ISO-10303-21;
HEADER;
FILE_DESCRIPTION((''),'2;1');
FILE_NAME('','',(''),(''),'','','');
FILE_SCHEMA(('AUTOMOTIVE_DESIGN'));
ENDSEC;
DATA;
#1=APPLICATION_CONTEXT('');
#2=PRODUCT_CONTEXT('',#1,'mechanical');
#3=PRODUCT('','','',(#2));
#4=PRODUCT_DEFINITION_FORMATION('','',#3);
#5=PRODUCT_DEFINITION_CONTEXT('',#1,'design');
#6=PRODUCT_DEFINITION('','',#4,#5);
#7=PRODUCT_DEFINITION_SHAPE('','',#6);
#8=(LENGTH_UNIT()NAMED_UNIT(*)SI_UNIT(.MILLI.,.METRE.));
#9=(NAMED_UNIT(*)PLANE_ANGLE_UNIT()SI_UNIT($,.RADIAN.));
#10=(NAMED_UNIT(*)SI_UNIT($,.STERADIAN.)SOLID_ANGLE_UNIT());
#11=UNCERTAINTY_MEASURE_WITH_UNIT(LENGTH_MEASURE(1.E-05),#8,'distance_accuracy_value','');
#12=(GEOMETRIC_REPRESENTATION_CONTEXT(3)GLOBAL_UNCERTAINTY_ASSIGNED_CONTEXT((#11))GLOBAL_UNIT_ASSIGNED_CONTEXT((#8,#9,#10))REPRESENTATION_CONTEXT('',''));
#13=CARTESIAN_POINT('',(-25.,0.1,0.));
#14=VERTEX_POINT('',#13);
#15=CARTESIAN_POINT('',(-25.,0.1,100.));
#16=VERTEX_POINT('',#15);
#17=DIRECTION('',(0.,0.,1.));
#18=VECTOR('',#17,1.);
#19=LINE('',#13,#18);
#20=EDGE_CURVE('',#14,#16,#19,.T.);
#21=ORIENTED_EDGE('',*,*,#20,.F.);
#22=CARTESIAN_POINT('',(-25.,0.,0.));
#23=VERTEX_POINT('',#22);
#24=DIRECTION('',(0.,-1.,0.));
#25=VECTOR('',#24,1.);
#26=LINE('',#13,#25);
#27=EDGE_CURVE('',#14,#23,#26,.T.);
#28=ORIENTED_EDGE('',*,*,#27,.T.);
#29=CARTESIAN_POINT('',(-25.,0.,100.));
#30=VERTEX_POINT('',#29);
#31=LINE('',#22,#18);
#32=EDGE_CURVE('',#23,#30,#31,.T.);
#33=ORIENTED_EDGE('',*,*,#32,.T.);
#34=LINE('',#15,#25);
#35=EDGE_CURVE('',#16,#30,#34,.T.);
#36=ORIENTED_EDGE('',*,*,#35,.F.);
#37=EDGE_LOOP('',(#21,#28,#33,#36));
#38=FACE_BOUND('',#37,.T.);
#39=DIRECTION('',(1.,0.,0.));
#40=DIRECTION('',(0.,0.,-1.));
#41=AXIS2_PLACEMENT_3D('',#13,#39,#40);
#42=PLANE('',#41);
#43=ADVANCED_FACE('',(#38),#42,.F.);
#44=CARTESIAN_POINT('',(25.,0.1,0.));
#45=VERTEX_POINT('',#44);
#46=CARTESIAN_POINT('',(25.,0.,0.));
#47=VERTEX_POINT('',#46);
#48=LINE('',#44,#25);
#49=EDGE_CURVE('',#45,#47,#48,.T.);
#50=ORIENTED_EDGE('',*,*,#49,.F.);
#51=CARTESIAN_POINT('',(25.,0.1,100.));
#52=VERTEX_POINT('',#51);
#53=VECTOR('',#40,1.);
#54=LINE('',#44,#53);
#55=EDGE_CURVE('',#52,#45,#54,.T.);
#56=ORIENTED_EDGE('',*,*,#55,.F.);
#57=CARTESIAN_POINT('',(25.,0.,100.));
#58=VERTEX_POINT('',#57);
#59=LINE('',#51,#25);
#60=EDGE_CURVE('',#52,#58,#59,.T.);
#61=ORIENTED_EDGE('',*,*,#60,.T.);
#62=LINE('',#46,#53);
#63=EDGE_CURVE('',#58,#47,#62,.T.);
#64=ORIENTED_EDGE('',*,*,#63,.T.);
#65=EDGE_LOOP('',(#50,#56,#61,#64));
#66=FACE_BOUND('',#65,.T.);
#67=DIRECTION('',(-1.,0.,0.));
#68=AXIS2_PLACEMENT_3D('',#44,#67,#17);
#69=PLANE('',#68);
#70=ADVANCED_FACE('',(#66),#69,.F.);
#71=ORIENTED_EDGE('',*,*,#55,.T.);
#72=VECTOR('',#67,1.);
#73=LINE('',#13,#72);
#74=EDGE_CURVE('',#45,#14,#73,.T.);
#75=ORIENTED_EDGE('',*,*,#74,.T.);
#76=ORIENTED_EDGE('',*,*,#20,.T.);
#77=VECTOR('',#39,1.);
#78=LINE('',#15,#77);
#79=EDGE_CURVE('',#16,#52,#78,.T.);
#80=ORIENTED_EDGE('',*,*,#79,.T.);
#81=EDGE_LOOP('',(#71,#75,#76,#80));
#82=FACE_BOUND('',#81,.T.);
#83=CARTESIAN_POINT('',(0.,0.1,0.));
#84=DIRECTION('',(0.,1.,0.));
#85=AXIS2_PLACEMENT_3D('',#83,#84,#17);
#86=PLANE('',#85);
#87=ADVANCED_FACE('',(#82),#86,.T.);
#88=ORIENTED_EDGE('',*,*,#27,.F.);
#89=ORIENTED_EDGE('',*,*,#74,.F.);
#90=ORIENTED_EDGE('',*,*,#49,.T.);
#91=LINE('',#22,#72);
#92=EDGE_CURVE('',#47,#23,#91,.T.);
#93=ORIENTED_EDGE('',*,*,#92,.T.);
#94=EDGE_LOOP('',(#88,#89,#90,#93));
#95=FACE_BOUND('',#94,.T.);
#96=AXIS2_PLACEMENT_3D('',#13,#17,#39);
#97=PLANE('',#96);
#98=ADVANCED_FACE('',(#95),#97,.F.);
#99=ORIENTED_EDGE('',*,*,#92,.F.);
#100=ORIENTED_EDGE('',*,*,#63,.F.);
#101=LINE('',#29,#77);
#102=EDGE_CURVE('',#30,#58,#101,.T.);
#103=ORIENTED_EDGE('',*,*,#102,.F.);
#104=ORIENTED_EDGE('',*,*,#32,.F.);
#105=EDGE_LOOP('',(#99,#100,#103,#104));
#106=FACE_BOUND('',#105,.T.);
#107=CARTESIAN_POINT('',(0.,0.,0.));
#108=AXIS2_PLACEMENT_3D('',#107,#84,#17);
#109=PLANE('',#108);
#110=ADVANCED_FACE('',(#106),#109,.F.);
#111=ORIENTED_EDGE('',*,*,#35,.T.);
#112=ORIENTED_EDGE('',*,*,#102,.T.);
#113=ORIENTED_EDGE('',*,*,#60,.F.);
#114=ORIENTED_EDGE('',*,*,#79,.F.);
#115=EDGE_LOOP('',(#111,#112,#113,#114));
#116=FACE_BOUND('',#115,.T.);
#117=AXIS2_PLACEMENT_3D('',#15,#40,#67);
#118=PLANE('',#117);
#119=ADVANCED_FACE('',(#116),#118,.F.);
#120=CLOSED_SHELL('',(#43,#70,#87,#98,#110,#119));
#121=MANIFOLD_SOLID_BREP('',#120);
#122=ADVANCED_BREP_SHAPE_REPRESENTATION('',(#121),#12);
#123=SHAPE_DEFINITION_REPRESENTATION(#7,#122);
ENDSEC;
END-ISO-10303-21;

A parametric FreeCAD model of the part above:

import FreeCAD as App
import Part
import Sketcher
from FreeCAD import Vector


def add_polygon(sketch, points):
    """Adds a closed chain of lines whose ends are joined by coincident constraints."""
    first, n = sketch.GeometryCount, len(points)
    for a, b in zip(points, points[1:] + points[:1]):
        sketch.addGeometry(Part.LineSegment(App.Vector(*a, 0), App.Vector(*b, 0)), False)
    for i in range(n):
        sketch.addConstraint(Sketcher.Constraint("Coincident", first + i, 2, first + (i + 1) % n, 1))

doc = App.newDocument("Part")
body = doc.addObject("PartDesign::Body", "Body")

sketch1 = body.newObject("Sketcher::SketchObject", "Sketch")
sketch1.AttachmentSupport = (doc.getObject("XZ_Plane"), [""])
sketch1.MapMode = "FlatFace"
add_polygon(sketch1, [(-25, 0), (-25, 100), (25, 100), (25, 0)])
sketch1.addConstraint([
    Sketcher.Constraint("Vertical", 0),
    Sketcher.Constraint("Horizontal", 1),
    Sketcher.Constraint("Vertical", 2),
    Sketcher.Constraint("Horizontal", 3),
    Sketcher.Constraint("Symmetric", 2, 2, 3, 2, -1, 1),
    Sketcher.Constraint("DistanceX", 1, 1, 1, 2, 50.0),
    Sketcher.Constraint("DistanceY", 0, 1, 0, 2, 100.0),
])
pad1 = body.newObject("PartDesign::Pad", "Pad")
pad1.Profile = sketch1
pad1.Length = 0.1
pad1.Reversed = True

doc.recompute()
